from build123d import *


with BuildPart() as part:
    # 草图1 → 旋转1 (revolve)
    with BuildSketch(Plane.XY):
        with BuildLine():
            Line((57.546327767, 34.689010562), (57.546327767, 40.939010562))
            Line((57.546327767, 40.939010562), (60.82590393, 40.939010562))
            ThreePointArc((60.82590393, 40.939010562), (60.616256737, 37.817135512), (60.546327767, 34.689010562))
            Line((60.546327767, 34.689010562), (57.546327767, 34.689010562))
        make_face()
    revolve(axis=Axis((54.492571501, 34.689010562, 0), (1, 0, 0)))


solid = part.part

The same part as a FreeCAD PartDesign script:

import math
import FreeCAD as App
import Part
import Sketcher

doc = App.newDocument("Part")
body = doc.addObject("PartDesign::Body", "Body")

# Sketch on XY plane
sketch1 = doc.addObject("Sketcher::SketchObject", "Sketch")
body.addObject(sketch1)
sketch1.AttachmentSupport = (doc.XY_Plane, [""])
sketch1.MapMode = "FlatFace"
sketch1.addGeometry([
    Part.LineSegment(App.Vector(57.5, 40.9, 0), App.Vector(57.5, 34.7, 0)),
    Part.LineSegment(App.Vector(57.5, 34.7, 0), App.Vector(60.5, 34.7, 0)),
    Part.ArcOfCircle(Part.Circle(App.Vector(130.5, 34.7, 0), App.Vector(0, 0, 1), 70), math.radians(174.88), math.radians(180)),
    Part.LineSegment(App.Vector(60.8, 40.9, 0), App.Vector(57.5, 40.9, 0)),
], False)
sketch1.addGeometry(Part.LineSegment(App.Vector(57.5, 34.7, 0), App.Vector(130.5, 34.7, 0)), True)  # axis
sketch1.addConstraint([
    Sketcher.Constraint("Coincident", 0, 2, 1, 1),
    Sketcher.Constraint("Coincident", 1, 2, 2, 2),
    Sketcher.Constraint("Coincident", 2, 1, 3, 1),
    Sketcher.Constraint("Coincident", 3, 2, 0, 1),
    Sketcher.Constraint("Vertical", 0),
    Sketcher.Constraint("Horizontal", 1),
    Sketcher.Constraint("Horizontal", 3),
    Sketcher.Constraint("Horizontal", 4),
    Sketcher.Constraint("Coincident", 4, 1, 0, 2),
    Sketcher.Constraint("Coincident", 4, 2, 2, 3),
    Sketcher.Constraint("Radius", 2, 70.0),
    Sketcher.Constraint("DistanceX", 1, 1, 1, 2, 3.0),
    Sketcher.Constraint("DistanceY", 0, 2, 0, 1, 6.25),
    Sketcher.Constraint("DistanceX", -1, 1, 2, 3, 130.546328),
    Sketcher.Constraint("DistanceY", -1, 1, 2, 3, 34.689011),
])
revolution = doc.addObject("PartDesign::Revolution", "Revolution")
body.addObject(revolution)
revolution.Profile = sketch1
revolution.ReferenceAxis = (sketch1, ["Axis0"])
revolution.Angle = 360

doc.recompute()
